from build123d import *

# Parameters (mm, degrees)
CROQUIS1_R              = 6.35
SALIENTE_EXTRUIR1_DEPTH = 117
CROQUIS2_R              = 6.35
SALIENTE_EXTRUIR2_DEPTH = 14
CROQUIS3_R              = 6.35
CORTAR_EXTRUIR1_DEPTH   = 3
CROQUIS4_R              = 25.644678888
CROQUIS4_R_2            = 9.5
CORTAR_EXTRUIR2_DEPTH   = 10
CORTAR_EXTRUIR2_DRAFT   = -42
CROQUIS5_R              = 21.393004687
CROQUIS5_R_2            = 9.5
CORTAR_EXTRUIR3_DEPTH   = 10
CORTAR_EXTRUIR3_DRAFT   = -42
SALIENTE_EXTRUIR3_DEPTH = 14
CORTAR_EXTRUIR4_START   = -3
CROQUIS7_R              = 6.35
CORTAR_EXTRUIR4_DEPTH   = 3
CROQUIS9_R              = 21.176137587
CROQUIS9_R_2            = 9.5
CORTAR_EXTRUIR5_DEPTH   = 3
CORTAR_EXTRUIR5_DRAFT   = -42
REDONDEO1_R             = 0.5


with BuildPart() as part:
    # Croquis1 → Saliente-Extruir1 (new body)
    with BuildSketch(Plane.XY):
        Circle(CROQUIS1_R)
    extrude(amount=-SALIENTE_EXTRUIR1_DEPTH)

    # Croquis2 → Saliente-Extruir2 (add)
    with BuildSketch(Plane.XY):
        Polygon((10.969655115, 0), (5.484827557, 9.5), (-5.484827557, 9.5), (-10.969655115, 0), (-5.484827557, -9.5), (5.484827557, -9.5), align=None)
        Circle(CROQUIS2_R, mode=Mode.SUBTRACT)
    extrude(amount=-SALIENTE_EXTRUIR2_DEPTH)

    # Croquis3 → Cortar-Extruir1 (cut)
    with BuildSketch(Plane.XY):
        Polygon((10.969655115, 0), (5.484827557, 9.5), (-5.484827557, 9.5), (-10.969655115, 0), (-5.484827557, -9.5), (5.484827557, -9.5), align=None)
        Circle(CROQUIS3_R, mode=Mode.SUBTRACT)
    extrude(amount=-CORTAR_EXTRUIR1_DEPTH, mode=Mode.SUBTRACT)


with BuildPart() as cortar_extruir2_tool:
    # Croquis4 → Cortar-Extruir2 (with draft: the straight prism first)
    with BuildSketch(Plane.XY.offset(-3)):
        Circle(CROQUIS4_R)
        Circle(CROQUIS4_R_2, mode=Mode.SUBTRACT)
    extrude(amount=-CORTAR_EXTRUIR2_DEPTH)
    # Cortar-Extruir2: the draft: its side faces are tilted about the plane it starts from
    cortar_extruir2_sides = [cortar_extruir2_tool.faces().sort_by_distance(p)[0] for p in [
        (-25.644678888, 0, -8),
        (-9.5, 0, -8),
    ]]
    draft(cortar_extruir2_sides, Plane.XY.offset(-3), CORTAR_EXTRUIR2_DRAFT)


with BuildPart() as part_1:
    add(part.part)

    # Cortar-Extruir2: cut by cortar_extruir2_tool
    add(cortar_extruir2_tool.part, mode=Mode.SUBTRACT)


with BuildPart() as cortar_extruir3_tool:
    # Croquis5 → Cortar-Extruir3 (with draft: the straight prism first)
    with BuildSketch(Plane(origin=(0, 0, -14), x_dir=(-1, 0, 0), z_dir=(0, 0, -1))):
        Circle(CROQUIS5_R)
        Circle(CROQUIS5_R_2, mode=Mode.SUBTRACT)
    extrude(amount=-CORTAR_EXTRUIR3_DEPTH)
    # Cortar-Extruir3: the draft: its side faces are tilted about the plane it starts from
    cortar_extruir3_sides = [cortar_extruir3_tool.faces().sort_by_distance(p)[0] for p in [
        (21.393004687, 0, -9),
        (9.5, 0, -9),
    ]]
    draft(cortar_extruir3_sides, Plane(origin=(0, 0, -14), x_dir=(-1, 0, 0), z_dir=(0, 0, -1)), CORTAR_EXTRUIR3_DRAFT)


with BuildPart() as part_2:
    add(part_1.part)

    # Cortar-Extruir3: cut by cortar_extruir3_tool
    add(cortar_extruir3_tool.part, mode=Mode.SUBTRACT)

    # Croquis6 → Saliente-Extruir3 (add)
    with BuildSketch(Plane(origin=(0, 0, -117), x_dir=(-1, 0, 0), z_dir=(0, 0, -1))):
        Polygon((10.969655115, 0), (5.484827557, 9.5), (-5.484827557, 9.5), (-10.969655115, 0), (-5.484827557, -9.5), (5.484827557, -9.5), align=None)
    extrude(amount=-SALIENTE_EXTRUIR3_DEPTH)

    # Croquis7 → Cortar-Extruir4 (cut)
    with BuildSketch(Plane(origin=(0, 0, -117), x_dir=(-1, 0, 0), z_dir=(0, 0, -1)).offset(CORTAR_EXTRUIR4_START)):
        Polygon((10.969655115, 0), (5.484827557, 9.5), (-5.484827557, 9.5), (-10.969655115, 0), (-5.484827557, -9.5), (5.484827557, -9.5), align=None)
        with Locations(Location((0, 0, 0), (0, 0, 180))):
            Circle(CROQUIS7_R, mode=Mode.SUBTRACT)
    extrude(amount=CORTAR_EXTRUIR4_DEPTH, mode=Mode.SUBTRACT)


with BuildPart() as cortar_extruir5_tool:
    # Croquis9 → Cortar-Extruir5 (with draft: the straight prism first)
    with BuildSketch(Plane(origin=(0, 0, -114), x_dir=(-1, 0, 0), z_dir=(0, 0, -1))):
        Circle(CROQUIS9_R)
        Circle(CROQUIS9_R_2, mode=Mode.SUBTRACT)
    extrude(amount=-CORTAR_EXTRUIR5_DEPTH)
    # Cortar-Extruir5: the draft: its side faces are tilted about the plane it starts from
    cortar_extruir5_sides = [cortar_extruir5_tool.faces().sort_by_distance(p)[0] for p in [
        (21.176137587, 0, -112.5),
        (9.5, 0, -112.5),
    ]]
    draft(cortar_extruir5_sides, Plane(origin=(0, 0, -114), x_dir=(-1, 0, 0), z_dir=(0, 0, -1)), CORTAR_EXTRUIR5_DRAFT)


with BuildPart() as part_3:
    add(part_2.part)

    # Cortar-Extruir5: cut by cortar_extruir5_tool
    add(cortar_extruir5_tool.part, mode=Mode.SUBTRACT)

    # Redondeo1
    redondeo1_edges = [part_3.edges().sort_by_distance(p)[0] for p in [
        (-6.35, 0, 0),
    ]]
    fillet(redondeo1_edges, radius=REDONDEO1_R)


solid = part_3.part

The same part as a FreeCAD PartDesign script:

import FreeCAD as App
import Part
import Sketcher
from FreeCAD import Vector
Q = App.Units.Quantity


def edges_at(feature, points):
    """Names of the edges that pass closest to the given points."""
    edges = feature.Shape.Edges
    near = lambda p: min(range(len(edges)), key=lambda i: edges[i].distToShape(Part.Vertex(*p))[0])
    return sorted({f"Edge{near(p) + 1}" for p in points})


def faces_at(feature, points):
    """Names of the faces that lie closest to the given points."""
    faces = feature.Shape.Faces
    near = lambda p: min(range(len(faces)), key=lambda i: faces[i].distToShape(Part.Vertex(*p))[0])
    return sorted({f"Face{near(p) + 1}" for p in points})

doc = App.newDocument("Part")
body = doc.addObject("PartDesign::Body", "Body")

# Sketch on XY plane
sketch1 = doc.addObject("Sketcher::SketchObject", "Sketch")
body.addObject(sketch1)
sketch1.AttachmentSupport = (doc.XY_Plane, [""])
sketch1.MapMode = "FlatFace"
sketch1.addGeometry(Part.Circle(Vector(0, 0, 0), Vector(0, 0, 1), 6.35), False)
sketch1.addConstraint(Sketcher.Constraint("Coincident", 0, 3, -1, 1))
sketch1.addConstraint(Sketcher.Constraint("Diameter", 0, 12.7))
pad1 = doc.addObject("PartDesign::Pad", "Pad")
body.addObject(pad1)
pad1.Profile = sketch1
pad1.Length = 117
pad1.Reversed = True

# Sketch on XY plane
sketch2 = doc.addObject("Sketcher::SketchObject", "Sketch001")
body.addObject(sketch2)
sketch2.AttachmentSupport = (doc.XY_Plane, [""])
sketch2.MapMode = "FlatFace"
sketch2.addGeometry(Part.LineSegment(Vector(10.969655, 0, 0), Vector(5.484828, 9.5, 0)), False)
sketch2.addGeometry(Part.LineSegment(Vector(5.484828, 9.5, 0), Vector(-5.484828, 9.5, 0)), False)
sketch2.addGeometry(Part.LineSegment(Vector(-5.484828, 9.5, 0), Vector(-10.969655, 0, 0)), False)
sketch2.addGeometry(Part.LineSegment(Vector(-10.969655, 0, 0), Vector(-5.484828, -9.5, 0)), False)
sketch2.addGeometry(Part.LineSegment(Vector(-5.484828, -9.5, 0), Vector(5.484828, -9.5, 0)), False)
sketch2.addGeometry(Part.LineSegment(Vector(5.484828, -9.5, 0), Vector(10.969655, 0, 0)), False)
sketch2.addGeometry(Part.Circle(Vector(0, 0, 0), Vector(0, 0, 1), 6.35), False)
sketch2.addConstraint(Sketcher.Constraint("Coincident", 0, 2, 1, 1))
sketch2.addConstraint(Sketcher.Constraint("Coincident", 1, 2, 2, 1))
sketch2.addConstraint(Sketcher.Constraint("Coincident", 2, 2, 3, 1))
sketch2.addConstraint(Sketcher.Constraint("Coincident", 3, 2, 4, 1))
sketch2.addConstraint(Sketcher.Constraint("Coincident", 4, 2, 5, 1))
sketch2.addConstraint(Sketcher.Constraint("Coincident", 5, 2, 0, 1))
sketch2.addConstraint(Sketcher.Constraint("Horizontal", 1))
sketch2.addConstraint(Sketcher.Constraint("Horizontal", 4))
sketch2.addConstraint(Sketcher.Constraint("Coincident", 6, 3, -1, 1))
sketch2.addConstraint(Sketcher.Constraint("Symmetric", 0, 2, 3, 2, -1, 1))
sketch2.addConstraint(Sketcher.Constraint("Symmetric", 2, 2, 5, 2, -1, 1))
sketch2.addConstraint(Sketcher.Constraint("PointOnObject", 2, 2, -1))
sketch2.addConstraint(Sketcher.Constraint("Parallel", 2, 5))
sketch2.addConstraint(Sketcher.Constraint("Vertical", 1, 2, 3, 2))
sketch2.addConstraint(Sketcher.Constraint("Diameter", 6, 12.7))
sketch2.addConstraint(Sketcher.Constraint("Angle", 0, Q("120 deg")))
sketch2.addConstraint(Sketcher.Constraint("DistanceY", 3, 2, 1, 2, 19.0))
sketch2.addConstraint(Sketcher.Constraint("DistanceX", 1, 2, 1, 1, 10.969655))
pad2 = doc.addObject("PartDesign::Pad", "Pad001")
body.addObject(pad2)
pad2.Profile = sketch2
pad2.Length = 14
pad2.Reversed = True

# Sketch on XY plane
sketch3 = doc.addObject("Sketcher::SketchObject", "Sketch002")
body.addObject(sketch3)
sketch3.AttachmentSupport = (doc.XY_Plane, [""])
sketch3.MapMode = "FlatFace"
sketch3.addGeometry(Part.LineSegment(Vector(10.969655, 0, 0), Vector(5.484828, 9.5, 0)), False)
sketch3.addGeometry(Part.LineSegment(Vector(5.484828, 9.5, 0), Vector(-5.484828, 9.5, 0)), False)
sketch3.addGeometry(Part.LineSegment(Vector(-5.484828, 9.5, 0), Vector(-10.969655, 0, 0)), False)
sketch3.addGeometry(Part.LineSegment(Vector(-10.969655, 0, 0), Vector(-5.484828, -9.5, 0)), False)
sketch3.addGeometry(Part.LineSegment(Vector(-5.484828, -9.5, 0), Vector(5.484828, -9.5, 0)), False)
sketch3.addGeometry(Part.LineSegment(Vector(5.484828, -9.5, 0), Vector(10.969655, 0, 0)), False)
sketch3.addGeometry(Part.Circle(Vector(0, 0, 0), Vector(0, 0, 1), 6.35), False)
sketch3.addConstraint(Sketcher.Constraint("Coincident", 0, 2, 1, 1))
sketch3.addConstraint(Sketcher.Constraint("Coincident", 1, 2, 2, 1))
sketch3.addConstraint(Sketcher.Constraint("Coincident", 2, 2, 3, 1))
sketch3.addConstraint(Sketcher.Constraint("Coincident", 3, 2, 4, 1))
sketch3.addConstraint(Sketcher.Constraint("Coincident", 4, 2, 5, 1))
sketch3.addConstraint(Sketcher.Constraint("Coincident", 5, 2, 0, 1))
sketch3.addConstraint(Sketcher.Constraint("Horizontal", 1))
sketch3.addConstraint(Sketcher.Constraint("Horizontal", 4))
sketch3.addConstraint(Sketcher.Constraint("Coincident", 6, 3, -1, 1))
sketch3.addConstraint(Sketcher.Constraint("Symmetric", 0, 2, 3, 2, -1, 1))
sketch3.addConstraint(Sketcher.Constraint("Symmetric", 2, 2, 5, 2, -1, 1))
sketch3.addConstraint(Sketcher.Constraint("PointOnObject", 2, 2, -1))
sketch3.addConstraint(Sketcher.Constraint("Parallel", 2, 5))
sketch3.addConstraint(Sketcher.Constraint("Vertical", 1, 2, 3, 2))
sketch3.addConstraint(Sketcher.Constraint("Diameter", 6, 12.7))
sketch3.addConstraint(Sketcher.Constraint("Angle", 0, Q("120 deg")))
sketch3.addConstraint(Sketcher.Constraint("DistanceY", 3, 2, 1, 2, 19.0))
sketch3.addConstraint(Sketcher.Constraint("DistanceX", 1, 2, 1, 1, 10.969655))
pocket1 = doc.addObject("PartDesign::Pocket", "Pocket")
body.addObject(pocket1)
pocket1.Profile = sketch3
pocket1.Length = 3
body2 = doc.addObject("PartDesign::Body", "Body001")

# Sketch on XY plane
sketch4 = doc.addObject("Sketcher::SketchObject", "Sketch003")
body2.addObject(sketch4)
sketch4.AttachmentSupport = (doc.getObject("XY_Plane001"), [""])
sketch4.MapMode = "FlatFace"
sketch4.AttachmentOffset = App.Placement(Vector(0, 0, -3), App.Rotation())
sketch4.addGeometry(Part.Circle(Vector(0, 0, 0), Vector(0, 0, 1), 25.644679), False)
sketch4.addGeometry(Part.Circle(Vector(0, 0, 0), Vector(0, 0, 1), 9.5), False)
sketch4.addConstraint(Sketcher.Constraint("Coincident", 0, 3, -1, 1))
sketch4.addConstraint(Sketcher.Constraint("Coincident", 1, 3, -1, 1))
sketch4.addConstraint(Sketcher.Constraint("Diameter", 1, 19.0))
sketch4.addConstraint(Sketcher.Constraint("Diameter", 0, 51.289358))
pad3 = doc.addObject("PartDesign::Pad", "Pad002")
body2.addObject(pad3)
pad3.Profile = sketch4
pad3.Length = 10
pad3.Reversed = True
doc.recompute()

datumplane = doc.addObject("PartDesign::Plane", "DatumPlane")
body2.addObject(datumplane)
datumplane.AttachmentSupport = (doc.getObject("XY_Plane001"), [""])
datumplane.MapMode = "FlatFace"
datumplane.AttachmentOffset = App.Placement(Vector(0, 0, -3), App.Rotation())
draft = doc.addObject("PartDesign::Draft", "Draft")
body2.addObject(draft)
draft.Base = (pad3, faces_at(pad3, [(-25.645, 0, -8), (-9.5, 0, -8)]))
draft.NeutralPlane = (datumplane, [""])
draft.Angle = 42
draft.Reversed = True
doc.recompute()

boolean = doc.addObject("PartDesign::Boolean", "Boolean")
body.addObject(boolean)
boolean.Type = "Cut"
boolean.addObjects([body2])
body3 = doc.addObject("PartDesign::Body", "Body002")

# Sketch on XY plane
sketch5 = doc.addObject("Sketcher::SketchObject", "Sketch004")
body3.addObject(sketch5)
sketch5.AttachmentSupport = (doc.getObject("XY_Plane002"), [""])
sketch5.MapMode = "FlatFace"
sketch5.AttachmentOffset = App.Placement(Vector(0, 0, -14), App.Rotation())
sketch5.addGeometry(Part.Circle(Vector(0, 0, 0), Vector(0, 0, 1), 21.393005), False)
sketch5.addGeometry(Part.Circle(Vector(0, 0, 0), Vector(0, 0, 1), 9.5), False)
sketch5.addConstraint(Sketcher.Constraint("Coincident", 0, 3, -1, 1))
sketch5.addConstraint(Sketcher.Constraint("Coincident", 1, 3, -1, 1))
sketch5.addConstraint(Sketcher.Constraint("Diameter", 1, 19.0))
sketch5.addConstraint(Sketcher.Constraint("Diameter", 0, 42.786009))
pad4 = doc.addObject("PartDesign::Pad", "Pad003")
body3.addObject(pad4)
pad4.Profile = sketch5
pad4.Length = 10
doc.recompute()

datumplane2 = doc.addObject("PartDesign::Plane", "DatumPlane001")
body3.addObject(datumplane2)
datumplane2.AttachmentSupport = (doc.getObject("XY_Plane002"), [""])
datumplane2.MapMode = "FlatFace"
datumplane2.AttachmentOffset = App.Placement(Vector(0, 0, -14), App.Rotation())
draft2 = doc.addObject("PartDesign::Draft", "Draft001")
body3.addObject(draft2)
draft2.Base = (pad4, faces_at(pad4, [(21.393, 0, -9), (9.5, 0, -9)]))
draft2.NeutralPlane = (datumplane2, [""])
draft2.Angle = 42
draft2.Reversed = False
doc.recompute()

boolean2 = doc.addObject("PartDesign::Boolean", "Boolean001")
body.addObject(boolean2)
boolean2.Type = "Cut"
boolean2.addObjects([body3])

# Sketch on XY plane
sketch6 = doc.addObject("Sketcher::SketchObject", "Sketch005")
body.addObject(sketch6)
sketch6.AttachmentSupport = (doc.XY_Plane, [""])
sketch6.MapMode = "FlatFace"
sketch6.AttachmentOffset = App.Placement(Vector(0, 0, -117), App.Rotation())
sketch6.addGeometry(Part.LineSegment(Vector(-10.969655, 0, 0), Vector(-5.484828, 9.5, 0)), False)
sketch6.addGeometry(Part.LineSegment(Vector(-5.484828, 9.5, 0), Vector(5.484828, 9.5, 0)), False)
sketch6.addGeometry(Part.LineSegment(Vector(5.484828, 9.5, 0), Vector(10.969655, 0, 0)), False)
sketch6.addGeometry(Part.LineSegment(Vector(10.969655, 0, 0), Vector(5.484828, -9.5, 0)), False)
sketch6.addGeometry(Part.LineSegment(Vector(5.484828, -9.5, 0), Vector(-5.484828, -9.5, 0)), False)
sketch6.addGeometry(Part.LineSegment(Vector(-5.484828, -9.5, 0), Vector(-10.969655, 0, 0)), False)
sketch6.addConstraint(Sketcher.Constraint("Coincident", 0, 2, 1, 1))
sketch6.addConstraint(Sketcher.Constraint("Coincident", 1, 2, 2, 1))
sketch6.addConstraint(Sketcher.Constraint("Coincident", 2, 2, 3, 1))
sketch6.addConstraint(Sketcher.Constraint("Coincident", 3, 2, 4, 1))
sketch6.addConstraint(Sketcher.Constraint("Coincident", 4, 2, 5, 1))
sketch6.addConstraint(Sketcher.Constraint("Coincident", 5, 2, 0, 1))
sketch6.addConstraint(Sketcher.Constraint("Horizontal", 1))
sketch6.addConstraint(Sketcher.Constraint("Horizontal", 4))
sketch6.addConstraint(Sketcher.Constraint("Symmetric", 0, 2, 3, 2, -1, 1))
sketch6.addConstraint(Sketcher.Constraint("Symmetric", 2, 2, 5, 2, -1, 1))
sketch6.addConstraint(Sketcher.Constraint("PointOnObject", 2, 2, -1))
sketch6.addConstraint(Sketcher.Constraint("Parallel", 2, 5))
sketch6.addConstraint(Sketcher.Constraint("Vertical", 1, 2, 3, 2))
sketch6.addConstraint(Sketcher.Constraint("Angle", 0, Q("60 deg")))
sketch6.addConstraint(Sketcher.Constraint("DistanceY", 3, 2, 1, 2, 19.0))
sketch6.addConstraint(Sketcher.Constraint("DistanceX", 1, 1, 1, 2, 10.969655))
pad5 = doc.addObject("PartDesign::Pad", "Pad004")
body.addObject(pad5)
pad5.Profile = sketch6
pad5.Length = 14

# Sketch on XY plane
sketch7 = doc.addObject("Sketcher::SketchObject", "Sketch006")
body.addObject(sketch7)
sketch7.AttachmentSupport = (doc.XY_Plane, [""])
sketch7.MapMode = "FlatFace"
sketch7.AttachmentOffset = App.Placement(Vector(0, 0, -114), App.Rotation())
sketch7.addGeometry(Part.LineSegment(Vector(-10.969655, 0, 0), Vector(-5.484828, 9.5, 0)), False)
sketch7.addGeometry(Part.LineSegment(Vector(-5.484828, 9.5, 0), Vector(5.484828, 9.5, 0)), False)
sketch7.addGeometry(Part.LineSegment(Vector(5.484828, 9.5, 0), Vector(10.969655, 0, 0)), False)
sketch7.addGeometry(Part.LineSegment(Vector(10.969655, 0, 0), Vector(5.484828, -9.5, 0)), False)
sketch7.addGeometry(Part.LineSegment(Vector(5.484828, -9.5, 0), Vector(-5.484828, -9.5, 0)), False)
sketch7.addGeometry(Part.LineSegment(Vector(-5.484828, -9.5, 0), Vector(-10.969655, 0, 0)), False)
sketch7.addGeometry(Part.Circle(Vector(0, 0, 0), Vector(0, 0, 1), 6.35), False)
sketch7.addConstraint(Sketcher.Constraint("Coincident", 0, 2, 1, 1))
sketch7.addConstraint(Sketcher.Constraint("Coincident", 1, 2, 2, 1))
sketch7.addConstraint(Sketcher.Constraint("Coincident", 2, 2, 3, 1))
sketch7.addConstraint(Sketcher.Constraint("Coincident", 3, 2, 4, 1))
sketch7.addConstraint(Sketcher.Constraint("Coincident", 4, 2, 5, 1))
sketch7.addConstraint(Sketcher.Constraint("Coincident", 5, 2, 0, 1))
sketch7.addConstraint(Sketcher.Constraint("Horizontal", 1))
sketch7.addConstraint(Sketcher.Constraint("Horizontal", 4))
sketch7.addConstraint(Sketcher.Constraint("Coincident", 6, 3, -1, 1))
sketch7.addConstraint(Sketcher.Constraint("Symmetric", 0, 2, 3, 2, -1, 1))
sketch7.addConstraint(Sketcher.Constraint("Symmetric", 2, 2, 5, 2, -1, 1))
sketch7.addConstraint(Sketcher.Constraint("PointOnObject", 2, 2, -1))
sketch7.addConstraint(Sketcher.Constraint("Parallel", 2, 5))
sketch7.addConstraint(Sketcher.Constraint("Vertical", 1, 2, 3, 2))
sketch7.addConstraint(Sketcher.Constraint("Diameter", 6, 12.7))
sketch7.addConstraint(Sketcher.Constraint("Angle", 0, Q("60 deg")))
sketch7.addConstraint(Sketcher.Constraint("DistanceY", 3, 2, 1, 2, 19.0))
sketch7.addConstraint(Sketcher.Constraint("DistanceX", 1, 1, 1, 2, 10.969655))
pocket2 = doc.addObject("PartDesign::Pocket", "Pocket001")
body.addObject(pocket2)
pocket2.Profile = sketch7
pocket2.Length = 3
body4 = doc.addObject("PartDesign::Body", "Body003")

# Sketch on XY plane
sketch8 = doc.addObject("Sketcher::SketchObject", "Sketch007")
body4.addObject(sketch8)
sketch8.AttachmentSupport = (doc.getObject("XY_Plane003"), [""])
sketch8.MapMode = "FlatFace"
sketch8.AttachmentOffset = App.Placement(Vector(0, 0, -114), App.Rotation())
sketch8.addGeometry(Part.Circle(Vector(0, 0, 0), Vector(0, 0, 1), 21.176138), False)
sketch8.addGeometry(Part.Circle(Vector(0, 0, 0), Vector(0, 0, 1), 9.5), False)
sketch8.addConstraint(Sketcher.Constraint("Coincident", 0, 3, -1, 1))
sketch8.addConstraint(Sketcher.Constraint("Coincident", 1, 3, -1, 1))
sketch8.addConstraint(Sketcher.Constraint("Diameter", 1, 19.0))
sketch8.addConstraint(Sketcher.Constraint("Diameter", 0, 42.352275))
pad6 = doc.addObject("PartDesign::Pad", "Pad005")
body4.addObject(pad6)
pad6.Profile = sketch8
pad6.Length = 3
doc.recompute()

datumplane3 = doc.addObject("PartDesign::Plane", "DatumPlane002")
body4.addObject(datumplane3)
datumplane3.AttachmentSupport = (doc.getObject("XY_Plane003"), [""])
datumplane3.MapMode = "FlatFace"
datumplane3.AttachmentOffset = App.Placement(Vector(0, 0, -114), App.Rotation())
draft3 = doc.addObject("PartDesign::Draft", "Draft002")
body4.addObject(draft3)
draft3.Base = (pad6, faces_at(pad6, [(21.176, 0, -112.5), (9.5, 0, -112.5)]))
draft3.NeutralPlane = (datumplane3, [""])
draft3.Angle = 42
draft3.Reversed = False
doc.recompute()

boolean3 = doc.addObject("PartDesign::Boolean", "Boolean002")
body.addObject(boolean3)
boolean3.Type = "Cut"
boolean3.addObjects([body4])
doc.recompute()

fillet = doc.addObject("PartDesign::Fillet", "Fillet")
body.addObject(fillet)
fillet.Base = (boolean3, edges_at(boolean3, [(-6.35, 0, 0)]))
fillet.Radius = 0.5

doc.recompute()
